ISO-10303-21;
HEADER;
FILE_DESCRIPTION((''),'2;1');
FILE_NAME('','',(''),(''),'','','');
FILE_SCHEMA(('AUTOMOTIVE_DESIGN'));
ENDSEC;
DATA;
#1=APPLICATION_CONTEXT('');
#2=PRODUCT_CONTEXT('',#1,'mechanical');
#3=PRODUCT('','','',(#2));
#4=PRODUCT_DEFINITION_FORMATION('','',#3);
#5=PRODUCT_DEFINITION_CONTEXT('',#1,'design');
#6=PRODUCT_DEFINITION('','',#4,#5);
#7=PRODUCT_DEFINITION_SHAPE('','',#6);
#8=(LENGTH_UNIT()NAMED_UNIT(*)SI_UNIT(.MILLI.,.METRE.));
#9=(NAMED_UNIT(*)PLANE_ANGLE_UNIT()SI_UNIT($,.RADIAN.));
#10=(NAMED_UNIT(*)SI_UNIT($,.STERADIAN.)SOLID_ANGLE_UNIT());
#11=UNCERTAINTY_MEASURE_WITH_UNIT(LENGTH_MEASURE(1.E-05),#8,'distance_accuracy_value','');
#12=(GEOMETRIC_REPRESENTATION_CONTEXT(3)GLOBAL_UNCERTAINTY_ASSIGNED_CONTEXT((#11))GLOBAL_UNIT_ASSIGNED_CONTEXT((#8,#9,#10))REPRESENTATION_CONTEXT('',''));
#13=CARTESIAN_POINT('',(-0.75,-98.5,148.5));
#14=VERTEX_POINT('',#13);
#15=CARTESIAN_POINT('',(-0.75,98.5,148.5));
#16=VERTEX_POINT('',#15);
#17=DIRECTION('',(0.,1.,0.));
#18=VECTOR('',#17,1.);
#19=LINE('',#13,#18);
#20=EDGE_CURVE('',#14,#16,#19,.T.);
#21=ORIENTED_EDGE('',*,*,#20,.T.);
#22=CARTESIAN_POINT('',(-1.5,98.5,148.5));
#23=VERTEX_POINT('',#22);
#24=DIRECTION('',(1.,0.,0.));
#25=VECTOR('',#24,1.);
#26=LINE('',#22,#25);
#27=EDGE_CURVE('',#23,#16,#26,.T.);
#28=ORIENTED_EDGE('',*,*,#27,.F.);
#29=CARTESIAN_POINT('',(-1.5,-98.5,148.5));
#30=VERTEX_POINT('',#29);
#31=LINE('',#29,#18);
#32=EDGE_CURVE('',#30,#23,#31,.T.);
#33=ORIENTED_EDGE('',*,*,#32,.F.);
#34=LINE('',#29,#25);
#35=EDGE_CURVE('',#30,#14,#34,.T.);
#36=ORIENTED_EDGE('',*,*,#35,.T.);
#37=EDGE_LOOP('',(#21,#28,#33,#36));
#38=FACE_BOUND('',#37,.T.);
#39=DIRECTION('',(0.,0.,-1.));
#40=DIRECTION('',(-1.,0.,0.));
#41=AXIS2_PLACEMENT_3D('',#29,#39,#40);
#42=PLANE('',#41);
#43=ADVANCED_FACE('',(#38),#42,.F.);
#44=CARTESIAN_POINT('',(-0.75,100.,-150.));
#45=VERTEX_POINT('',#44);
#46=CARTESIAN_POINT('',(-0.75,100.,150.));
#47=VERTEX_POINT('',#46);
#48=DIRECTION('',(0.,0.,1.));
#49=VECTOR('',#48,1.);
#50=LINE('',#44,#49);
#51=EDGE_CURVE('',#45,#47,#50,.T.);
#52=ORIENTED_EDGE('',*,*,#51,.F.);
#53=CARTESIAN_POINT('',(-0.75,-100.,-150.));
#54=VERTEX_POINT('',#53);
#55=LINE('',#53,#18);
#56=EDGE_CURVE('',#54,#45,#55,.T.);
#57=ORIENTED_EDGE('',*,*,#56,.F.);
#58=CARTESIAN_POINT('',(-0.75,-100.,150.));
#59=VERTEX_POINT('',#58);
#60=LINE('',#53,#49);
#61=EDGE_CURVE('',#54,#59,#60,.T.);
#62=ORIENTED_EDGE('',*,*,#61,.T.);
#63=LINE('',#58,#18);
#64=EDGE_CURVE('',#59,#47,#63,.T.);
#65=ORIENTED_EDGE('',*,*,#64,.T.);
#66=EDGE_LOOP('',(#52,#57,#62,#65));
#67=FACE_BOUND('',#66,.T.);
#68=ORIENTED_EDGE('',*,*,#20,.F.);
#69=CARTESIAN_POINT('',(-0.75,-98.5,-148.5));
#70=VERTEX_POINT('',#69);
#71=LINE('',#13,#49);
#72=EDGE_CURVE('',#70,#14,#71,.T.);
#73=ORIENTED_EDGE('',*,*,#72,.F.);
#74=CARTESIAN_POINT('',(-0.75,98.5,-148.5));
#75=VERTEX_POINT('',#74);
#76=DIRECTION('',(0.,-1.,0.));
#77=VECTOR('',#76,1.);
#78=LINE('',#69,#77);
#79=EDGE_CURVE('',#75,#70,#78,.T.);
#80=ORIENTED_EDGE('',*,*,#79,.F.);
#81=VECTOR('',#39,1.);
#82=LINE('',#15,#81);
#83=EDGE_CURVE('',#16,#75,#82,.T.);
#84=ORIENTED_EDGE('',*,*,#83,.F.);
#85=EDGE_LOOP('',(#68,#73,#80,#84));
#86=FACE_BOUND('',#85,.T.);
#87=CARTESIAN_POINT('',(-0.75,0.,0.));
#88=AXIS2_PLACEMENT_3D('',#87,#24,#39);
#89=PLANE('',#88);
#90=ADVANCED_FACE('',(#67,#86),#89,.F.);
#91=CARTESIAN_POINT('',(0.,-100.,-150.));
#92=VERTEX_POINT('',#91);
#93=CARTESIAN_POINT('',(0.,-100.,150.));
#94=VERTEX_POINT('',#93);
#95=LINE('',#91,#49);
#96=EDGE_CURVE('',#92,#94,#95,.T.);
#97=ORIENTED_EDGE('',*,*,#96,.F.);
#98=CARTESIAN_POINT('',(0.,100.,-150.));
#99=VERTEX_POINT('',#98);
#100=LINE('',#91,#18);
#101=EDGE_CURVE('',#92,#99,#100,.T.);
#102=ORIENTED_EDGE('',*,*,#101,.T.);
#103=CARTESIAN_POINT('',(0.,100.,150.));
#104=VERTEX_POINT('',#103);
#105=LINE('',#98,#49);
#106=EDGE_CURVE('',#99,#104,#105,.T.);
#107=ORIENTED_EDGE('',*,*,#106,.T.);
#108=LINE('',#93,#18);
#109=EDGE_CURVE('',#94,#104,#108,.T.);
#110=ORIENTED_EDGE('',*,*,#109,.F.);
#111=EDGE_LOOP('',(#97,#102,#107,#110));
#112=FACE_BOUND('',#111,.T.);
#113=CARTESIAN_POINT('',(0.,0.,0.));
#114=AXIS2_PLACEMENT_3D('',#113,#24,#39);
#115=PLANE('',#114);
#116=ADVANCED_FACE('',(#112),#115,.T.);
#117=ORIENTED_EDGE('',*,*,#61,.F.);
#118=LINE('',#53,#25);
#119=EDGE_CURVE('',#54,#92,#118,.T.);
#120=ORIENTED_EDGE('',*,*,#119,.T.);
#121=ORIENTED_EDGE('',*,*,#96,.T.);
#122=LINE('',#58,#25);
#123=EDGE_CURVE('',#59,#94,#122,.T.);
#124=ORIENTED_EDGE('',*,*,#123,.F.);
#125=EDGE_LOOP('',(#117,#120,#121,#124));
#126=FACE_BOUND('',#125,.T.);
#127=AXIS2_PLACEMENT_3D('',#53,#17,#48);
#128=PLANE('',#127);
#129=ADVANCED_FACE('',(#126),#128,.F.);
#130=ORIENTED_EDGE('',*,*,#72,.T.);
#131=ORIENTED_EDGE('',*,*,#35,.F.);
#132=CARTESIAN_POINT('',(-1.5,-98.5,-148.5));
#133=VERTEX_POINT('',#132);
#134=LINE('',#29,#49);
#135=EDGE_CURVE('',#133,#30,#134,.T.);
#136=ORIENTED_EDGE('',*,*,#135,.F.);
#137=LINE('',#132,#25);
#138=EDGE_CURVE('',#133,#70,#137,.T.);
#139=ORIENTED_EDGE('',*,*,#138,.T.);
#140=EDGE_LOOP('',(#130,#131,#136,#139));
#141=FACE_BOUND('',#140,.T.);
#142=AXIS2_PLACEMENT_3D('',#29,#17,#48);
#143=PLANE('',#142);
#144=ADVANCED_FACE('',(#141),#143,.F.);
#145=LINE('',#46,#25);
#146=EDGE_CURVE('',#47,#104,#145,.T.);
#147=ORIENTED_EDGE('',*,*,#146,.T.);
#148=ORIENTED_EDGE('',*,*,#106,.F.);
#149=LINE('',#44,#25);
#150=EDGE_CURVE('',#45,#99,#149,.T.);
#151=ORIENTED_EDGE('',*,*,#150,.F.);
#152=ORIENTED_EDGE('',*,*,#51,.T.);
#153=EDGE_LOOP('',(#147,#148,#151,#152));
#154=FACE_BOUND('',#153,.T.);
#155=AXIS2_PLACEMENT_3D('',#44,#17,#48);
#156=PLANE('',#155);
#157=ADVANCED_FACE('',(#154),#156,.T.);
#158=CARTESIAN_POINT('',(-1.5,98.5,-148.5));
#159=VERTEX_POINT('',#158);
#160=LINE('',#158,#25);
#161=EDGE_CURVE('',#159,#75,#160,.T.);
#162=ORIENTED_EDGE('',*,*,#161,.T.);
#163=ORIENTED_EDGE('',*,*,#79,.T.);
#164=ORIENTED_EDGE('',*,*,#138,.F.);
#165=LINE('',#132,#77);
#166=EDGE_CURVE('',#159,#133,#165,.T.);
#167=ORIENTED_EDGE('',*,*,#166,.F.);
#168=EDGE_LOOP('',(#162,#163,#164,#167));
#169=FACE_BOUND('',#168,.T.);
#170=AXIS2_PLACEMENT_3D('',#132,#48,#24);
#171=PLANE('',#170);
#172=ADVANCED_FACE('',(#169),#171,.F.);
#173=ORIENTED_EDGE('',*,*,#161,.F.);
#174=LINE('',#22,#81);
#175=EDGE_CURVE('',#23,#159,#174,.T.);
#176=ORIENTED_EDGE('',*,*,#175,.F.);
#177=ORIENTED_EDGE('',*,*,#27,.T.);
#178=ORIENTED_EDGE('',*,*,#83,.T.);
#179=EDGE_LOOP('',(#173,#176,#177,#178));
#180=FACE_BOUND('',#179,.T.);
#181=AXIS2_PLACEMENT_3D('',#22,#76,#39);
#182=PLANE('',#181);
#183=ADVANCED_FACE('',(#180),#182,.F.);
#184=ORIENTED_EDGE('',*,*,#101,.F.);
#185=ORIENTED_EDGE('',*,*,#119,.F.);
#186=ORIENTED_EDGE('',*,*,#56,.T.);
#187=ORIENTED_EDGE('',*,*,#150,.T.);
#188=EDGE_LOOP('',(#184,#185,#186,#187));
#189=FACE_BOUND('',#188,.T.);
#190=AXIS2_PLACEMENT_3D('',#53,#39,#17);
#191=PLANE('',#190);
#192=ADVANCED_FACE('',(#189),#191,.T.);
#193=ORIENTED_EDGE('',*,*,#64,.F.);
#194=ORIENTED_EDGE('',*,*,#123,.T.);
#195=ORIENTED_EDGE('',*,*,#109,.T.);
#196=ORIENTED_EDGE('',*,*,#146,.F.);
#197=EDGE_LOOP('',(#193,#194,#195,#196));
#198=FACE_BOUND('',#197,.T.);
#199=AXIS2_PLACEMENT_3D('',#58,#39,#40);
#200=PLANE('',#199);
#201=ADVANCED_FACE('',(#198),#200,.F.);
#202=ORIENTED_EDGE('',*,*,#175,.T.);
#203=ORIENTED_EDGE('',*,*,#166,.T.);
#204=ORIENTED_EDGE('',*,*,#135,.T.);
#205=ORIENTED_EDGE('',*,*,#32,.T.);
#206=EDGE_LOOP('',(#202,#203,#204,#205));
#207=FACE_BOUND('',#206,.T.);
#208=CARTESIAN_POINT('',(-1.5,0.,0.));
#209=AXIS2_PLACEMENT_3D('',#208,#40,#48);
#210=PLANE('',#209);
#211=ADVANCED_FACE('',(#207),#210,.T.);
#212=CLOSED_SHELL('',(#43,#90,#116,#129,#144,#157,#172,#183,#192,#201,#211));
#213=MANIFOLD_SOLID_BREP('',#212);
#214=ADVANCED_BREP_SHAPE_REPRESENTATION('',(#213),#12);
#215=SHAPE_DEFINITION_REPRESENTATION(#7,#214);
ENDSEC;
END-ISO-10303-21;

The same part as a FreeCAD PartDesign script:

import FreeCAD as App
import Part
import Sketcher

V = App.Vector

doc = App.newDocument("Part")
body = doc.addObject("PartDesign::Body", "Body")

# Sketch on YZ plane
sketch1 = body.newObject("Sketcher::SketchObject", "Sketch")
sketch1.AttachmentSupport = (doc.getObject("YZ_Plane"), [""])
sketch1.MapMode = "FlatFace"
sketch1.addGeometry([
    Part.LineSegment(V(100, 150, 0), V(-100, 150, 0)),
    Part.LineSegment(V(-100, 150, 0), V(-100, -150, 0)),
    Part.LineSegment(V(-100, -150, 0), V(100, -150, 0)),
    Part.LineSegment(V(100, -150, 0), V(100, 150, 0)),
], False)
sketch1.addConstraint([
    Sketcher.Constraint("Coincident", 0, 2, 1, 1),
    Sketcher.Constraint("Coincident", 1, 2, 2, 1),
    Sketcher.Constraint("Coincident", 2, 2, 3, 1),
    Sketcher.Constraint("Coincident", 3, 2, 0, 1),
    Sketcher.Constraint("Horizontal", 0),
    Sketcher.Constraint("Vertical", 1),
    Sketcher.Constraint("Horizontal", 2),
    Sketcher.Constraint("Vertical", 3),
    Sketcher.Constraint("Symmetric", 0, 2, 2, 2, -1, 1),
    Sketcher.Constraint("DistanceX", 0, 2, 0, 1, 200.0),
    Sketcher.Constraint("DistanceY", 1, 2, 1, 1, 300.0),
])
pad1 = body.newObject("PartDesign::Pad", "Pad")
pad1.Profile = sketch1
pad1.Length = 0.75
pad1.Reversed = True

# Sketch on YZ plane
sketch2 = body.newObject("Sketcher::SketchObject", "Sketch001")
sketch2.AttachmentSupport = (doc.getObject("YZ_Plane"), [""])
sketch2.MapMode = "FlatFace"
sketch2.AttachmentOffset = App.Placement(V(0, 0, -0.75), App.Rotation())
sketch2.addGeometry([
    Part.LineSegment(V(98, -148, 0), V(-98, -148, 0)),
    Part.LineSegment(V(-98, -148, 0), V(-98, 148, 0)),
    Part.LineSegment(V(-98, 148, 0), V(98, 148, 0)),
    Part.LineSegment(V(98, 148, 0), V(98, -148, 0)),
], False)
sketch2.addConstraint([
    Sketcher.Constraint("Coincident", 0, 2, 1, 1),
    Sketcher.Constraint("Coincident", 1, 2, 2, 1),
    Sketcher.Constraint("Coincident", 2, 2, 3, 1),
    Sketcher.Constraint("Coincident", 3, 2, 0, 1),
    Sketcher.Constraint("Horizontal", 0),
    Sketcher.Constraint("Vertical", 1),
    Sketcher.Constraint("Horizontal", 2),
    Sketcher.Constraint("Vertical", 3),
    Sketcher.Constraint("Symmetric", 0, 2, 2, 2, -1, 1),
    Sketcher.Constraint("DistanceX", 0, 2, 0, 1, 197.0),
    Sketcher.Constraint("DistanceY", 1, 1, 1, 2, 297.0),
])
pad2 = body.newObject("PartDesign::Pad", "Pad001")
pad2.Profile = sketch2
pad2.Length = 0.75
pad2.Reversed = True

doc.recompute()
